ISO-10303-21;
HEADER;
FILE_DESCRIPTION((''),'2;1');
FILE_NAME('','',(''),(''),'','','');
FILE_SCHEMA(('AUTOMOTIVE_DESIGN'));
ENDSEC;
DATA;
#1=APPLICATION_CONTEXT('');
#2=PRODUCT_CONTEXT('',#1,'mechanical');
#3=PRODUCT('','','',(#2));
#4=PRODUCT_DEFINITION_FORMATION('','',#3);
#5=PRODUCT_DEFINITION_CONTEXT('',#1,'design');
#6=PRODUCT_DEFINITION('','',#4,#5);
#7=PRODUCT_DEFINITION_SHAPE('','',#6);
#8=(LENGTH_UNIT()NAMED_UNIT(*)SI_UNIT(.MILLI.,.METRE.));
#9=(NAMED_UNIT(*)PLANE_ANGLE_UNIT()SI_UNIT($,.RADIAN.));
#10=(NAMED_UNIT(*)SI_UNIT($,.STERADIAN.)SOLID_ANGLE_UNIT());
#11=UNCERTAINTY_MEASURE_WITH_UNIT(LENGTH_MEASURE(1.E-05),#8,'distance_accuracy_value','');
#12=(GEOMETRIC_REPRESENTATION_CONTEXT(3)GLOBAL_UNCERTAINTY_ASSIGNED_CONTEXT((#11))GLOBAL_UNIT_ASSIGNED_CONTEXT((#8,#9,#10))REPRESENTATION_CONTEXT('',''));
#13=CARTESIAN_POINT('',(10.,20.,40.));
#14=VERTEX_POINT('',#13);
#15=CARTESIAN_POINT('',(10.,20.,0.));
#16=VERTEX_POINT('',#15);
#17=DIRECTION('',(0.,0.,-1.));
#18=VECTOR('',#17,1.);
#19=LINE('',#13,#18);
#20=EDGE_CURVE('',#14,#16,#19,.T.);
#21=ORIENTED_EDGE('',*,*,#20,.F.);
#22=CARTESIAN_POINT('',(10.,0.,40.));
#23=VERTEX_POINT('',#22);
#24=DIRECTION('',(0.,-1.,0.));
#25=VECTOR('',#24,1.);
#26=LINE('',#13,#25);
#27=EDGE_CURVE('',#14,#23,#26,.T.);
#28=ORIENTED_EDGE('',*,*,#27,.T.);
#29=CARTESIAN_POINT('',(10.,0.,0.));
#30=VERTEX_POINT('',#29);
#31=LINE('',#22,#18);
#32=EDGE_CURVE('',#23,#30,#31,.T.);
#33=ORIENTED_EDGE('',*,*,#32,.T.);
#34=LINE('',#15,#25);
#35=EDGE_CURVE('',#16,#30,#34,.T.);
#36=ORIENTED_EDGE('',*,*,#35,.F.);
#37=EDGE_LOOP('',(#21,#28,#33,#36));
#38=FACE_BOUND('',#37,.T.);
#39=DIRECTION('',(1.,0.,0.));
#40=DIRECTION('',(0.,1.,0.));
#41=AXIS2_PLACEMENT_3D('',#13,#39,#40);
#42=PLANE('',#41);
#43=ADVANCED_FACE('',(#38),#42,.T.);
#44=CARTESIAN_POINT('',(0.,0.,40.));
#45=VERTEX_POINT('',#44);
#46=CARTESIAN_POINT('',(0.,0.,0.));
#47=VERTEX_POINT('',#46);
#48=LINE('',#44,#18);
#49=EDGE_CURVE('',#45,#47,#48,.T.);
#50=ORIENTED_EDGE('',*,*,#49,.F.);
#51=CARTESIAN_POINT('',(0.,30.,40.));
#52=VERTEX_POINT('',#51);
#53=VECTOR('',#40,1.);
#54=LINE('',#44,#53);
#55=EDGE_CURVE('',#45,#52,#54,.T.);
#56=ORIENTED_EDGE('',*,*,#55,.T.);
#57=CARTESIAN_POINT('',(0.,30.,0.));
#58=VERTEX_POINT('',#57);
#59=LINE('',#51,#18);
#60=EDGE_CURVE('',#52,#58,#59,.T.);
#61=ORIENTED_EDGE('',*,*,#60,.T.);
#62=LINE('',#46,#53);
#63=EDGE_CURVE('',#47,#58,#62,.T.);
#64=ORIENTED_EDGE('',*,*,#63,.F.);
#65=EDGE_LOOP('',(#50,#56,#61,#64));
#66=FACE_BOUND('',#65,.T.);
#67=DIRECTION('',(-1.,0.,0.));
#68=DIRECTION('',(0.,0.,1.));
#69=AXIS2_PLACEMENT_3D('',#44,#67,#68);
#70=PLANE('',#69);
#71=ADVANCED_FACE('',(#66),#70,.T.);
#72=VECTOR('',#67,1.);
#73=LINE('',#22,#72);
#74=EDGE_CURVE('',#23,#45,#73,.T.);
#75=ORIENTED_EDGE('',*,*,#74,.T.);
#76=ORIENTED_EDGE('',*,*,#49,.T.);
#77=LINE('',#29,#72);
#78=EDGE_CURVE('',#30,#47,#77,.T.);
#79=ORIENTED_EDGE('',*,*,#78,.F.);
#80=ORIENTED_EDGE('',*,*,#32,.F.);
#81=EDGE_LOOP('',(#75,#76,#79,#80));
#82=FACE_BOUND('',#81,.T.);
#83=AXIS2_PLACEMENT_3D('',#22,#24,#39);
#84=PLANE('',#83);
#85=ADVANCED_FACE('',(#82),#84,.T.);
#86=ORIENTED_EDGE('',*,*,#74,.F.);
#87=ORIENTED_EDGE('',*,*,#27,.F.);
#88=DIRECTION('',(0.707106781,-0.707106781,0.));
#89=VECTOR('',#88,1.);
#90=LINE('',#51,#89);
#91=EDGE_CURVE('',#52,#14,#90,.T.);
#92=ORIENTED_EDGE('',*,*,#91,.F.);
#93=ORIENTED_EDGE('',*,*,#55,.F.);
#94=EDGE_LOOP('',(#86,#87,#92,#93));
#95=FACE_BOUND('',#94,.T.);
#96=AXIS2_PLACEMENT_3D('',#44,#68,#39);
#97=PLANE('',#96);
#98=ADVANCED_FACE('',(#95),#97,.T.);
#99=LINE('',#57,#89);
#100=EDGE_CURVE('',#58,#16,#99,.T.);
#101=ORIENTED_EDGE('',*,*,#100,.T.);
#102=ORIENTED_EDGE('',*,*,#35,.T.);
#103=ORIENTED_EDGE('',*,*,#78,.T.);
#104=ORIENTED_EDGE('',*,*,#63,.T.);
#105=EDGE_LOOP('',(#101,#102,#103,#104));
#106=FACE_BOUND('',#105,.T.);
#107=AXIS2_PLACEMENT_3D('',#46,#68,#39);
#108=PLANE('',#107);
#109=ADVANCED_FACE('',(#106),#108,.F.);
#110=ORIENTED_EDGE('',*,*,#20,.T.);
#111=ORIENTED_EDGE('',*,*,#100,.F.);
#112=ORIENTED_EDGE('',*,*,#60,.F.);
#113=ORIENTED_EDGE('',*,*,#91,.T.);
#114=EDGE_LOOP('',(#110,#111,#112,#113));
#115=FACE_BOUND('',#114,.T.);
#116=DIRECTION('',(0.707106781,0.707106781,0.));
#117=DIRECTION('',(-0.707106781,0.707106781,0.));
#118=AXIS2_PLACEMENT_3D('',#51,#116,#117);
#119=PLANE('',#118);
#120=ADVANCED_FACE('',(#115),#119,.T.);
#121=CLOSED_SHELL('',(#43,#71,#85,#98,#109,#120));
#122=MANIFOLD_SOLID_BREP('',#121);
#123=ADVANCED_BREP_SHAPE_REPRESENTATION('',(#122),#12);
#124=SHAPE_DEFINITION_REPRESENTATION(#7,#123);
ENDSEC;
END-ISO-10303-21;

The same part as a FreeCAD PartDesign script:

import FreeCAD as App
import Part
import Sketcher

V = App.Vector
Q = App.Units.Quantity

doc = App.newDocument("Part")
body = doc.addObject("PartDesign::Body", "Body")

sketch1 = body.newObject("Sketcher::SketchObject", "Sketch")
sketch1.AttachmentSupport = (doc.getObject("XY_Plane"), [""])
sketch1.MapMode = "FlatFace"
sketch1.addGeometry(Part.LineSegment(V(0, 30, 0), V(0, 0, 0)), False)
sketch1.addGeometry(Part.LineSegment(V(0, 0, 0), V(10, 0, 0)), False)
sketch1.addGeometry(Part.LineSegment(V(10, 0, 0), V(10, 20, 0)), False)
sketch1.addGeometry(Part.LineSegment(V(10, 20, 0), V(0, 30, 0)), False)
sketch1.addConstraint(Sketcher.Constraint("Coincident", 0, 2, 1, 1))
sketch1.addConstraint(Sketcher.Constraint("Coincident", 1, 2, 2, 1))
sketch1.addConstraint(Sketcher.Constraint("Coincident", 2, 2, 3, 1))
sketch1.addConstraint(Sketcher.Constraint("Coincident", 3, 2, 0, 1))
sketch1.addConstraint(Sketcher.Constraint("Vertical", 0))
sketch1.addConstraint(Sketcher.Constraint("Horizontal", 1))
sketch1.addConstraint(Sketcher.Constraint("Vertical", 2))
sketch1.addConstraint(Sketcher.Constraint("Coincident", 0, 2, -1, 1))
sketch1.addConstraint(Sketcher.Constraint("DistanceX", 1, 1, 1, 2, Q("10 mm")))
sketch1.addConstraint(Sketcher.Constraint("DistanceY", 0, 2, 0, 1, Q("30 mm")))
sketch1.addConstraint(Sketcher.Constraint("DistanceY", 2, 1, 2, 2, Q("20 mm")))
pad1 = body.newObject("PartDesign::Pad", "Pad")
pad1.Profile = sketch1
pad1.Length = 40

doc.recompute()
